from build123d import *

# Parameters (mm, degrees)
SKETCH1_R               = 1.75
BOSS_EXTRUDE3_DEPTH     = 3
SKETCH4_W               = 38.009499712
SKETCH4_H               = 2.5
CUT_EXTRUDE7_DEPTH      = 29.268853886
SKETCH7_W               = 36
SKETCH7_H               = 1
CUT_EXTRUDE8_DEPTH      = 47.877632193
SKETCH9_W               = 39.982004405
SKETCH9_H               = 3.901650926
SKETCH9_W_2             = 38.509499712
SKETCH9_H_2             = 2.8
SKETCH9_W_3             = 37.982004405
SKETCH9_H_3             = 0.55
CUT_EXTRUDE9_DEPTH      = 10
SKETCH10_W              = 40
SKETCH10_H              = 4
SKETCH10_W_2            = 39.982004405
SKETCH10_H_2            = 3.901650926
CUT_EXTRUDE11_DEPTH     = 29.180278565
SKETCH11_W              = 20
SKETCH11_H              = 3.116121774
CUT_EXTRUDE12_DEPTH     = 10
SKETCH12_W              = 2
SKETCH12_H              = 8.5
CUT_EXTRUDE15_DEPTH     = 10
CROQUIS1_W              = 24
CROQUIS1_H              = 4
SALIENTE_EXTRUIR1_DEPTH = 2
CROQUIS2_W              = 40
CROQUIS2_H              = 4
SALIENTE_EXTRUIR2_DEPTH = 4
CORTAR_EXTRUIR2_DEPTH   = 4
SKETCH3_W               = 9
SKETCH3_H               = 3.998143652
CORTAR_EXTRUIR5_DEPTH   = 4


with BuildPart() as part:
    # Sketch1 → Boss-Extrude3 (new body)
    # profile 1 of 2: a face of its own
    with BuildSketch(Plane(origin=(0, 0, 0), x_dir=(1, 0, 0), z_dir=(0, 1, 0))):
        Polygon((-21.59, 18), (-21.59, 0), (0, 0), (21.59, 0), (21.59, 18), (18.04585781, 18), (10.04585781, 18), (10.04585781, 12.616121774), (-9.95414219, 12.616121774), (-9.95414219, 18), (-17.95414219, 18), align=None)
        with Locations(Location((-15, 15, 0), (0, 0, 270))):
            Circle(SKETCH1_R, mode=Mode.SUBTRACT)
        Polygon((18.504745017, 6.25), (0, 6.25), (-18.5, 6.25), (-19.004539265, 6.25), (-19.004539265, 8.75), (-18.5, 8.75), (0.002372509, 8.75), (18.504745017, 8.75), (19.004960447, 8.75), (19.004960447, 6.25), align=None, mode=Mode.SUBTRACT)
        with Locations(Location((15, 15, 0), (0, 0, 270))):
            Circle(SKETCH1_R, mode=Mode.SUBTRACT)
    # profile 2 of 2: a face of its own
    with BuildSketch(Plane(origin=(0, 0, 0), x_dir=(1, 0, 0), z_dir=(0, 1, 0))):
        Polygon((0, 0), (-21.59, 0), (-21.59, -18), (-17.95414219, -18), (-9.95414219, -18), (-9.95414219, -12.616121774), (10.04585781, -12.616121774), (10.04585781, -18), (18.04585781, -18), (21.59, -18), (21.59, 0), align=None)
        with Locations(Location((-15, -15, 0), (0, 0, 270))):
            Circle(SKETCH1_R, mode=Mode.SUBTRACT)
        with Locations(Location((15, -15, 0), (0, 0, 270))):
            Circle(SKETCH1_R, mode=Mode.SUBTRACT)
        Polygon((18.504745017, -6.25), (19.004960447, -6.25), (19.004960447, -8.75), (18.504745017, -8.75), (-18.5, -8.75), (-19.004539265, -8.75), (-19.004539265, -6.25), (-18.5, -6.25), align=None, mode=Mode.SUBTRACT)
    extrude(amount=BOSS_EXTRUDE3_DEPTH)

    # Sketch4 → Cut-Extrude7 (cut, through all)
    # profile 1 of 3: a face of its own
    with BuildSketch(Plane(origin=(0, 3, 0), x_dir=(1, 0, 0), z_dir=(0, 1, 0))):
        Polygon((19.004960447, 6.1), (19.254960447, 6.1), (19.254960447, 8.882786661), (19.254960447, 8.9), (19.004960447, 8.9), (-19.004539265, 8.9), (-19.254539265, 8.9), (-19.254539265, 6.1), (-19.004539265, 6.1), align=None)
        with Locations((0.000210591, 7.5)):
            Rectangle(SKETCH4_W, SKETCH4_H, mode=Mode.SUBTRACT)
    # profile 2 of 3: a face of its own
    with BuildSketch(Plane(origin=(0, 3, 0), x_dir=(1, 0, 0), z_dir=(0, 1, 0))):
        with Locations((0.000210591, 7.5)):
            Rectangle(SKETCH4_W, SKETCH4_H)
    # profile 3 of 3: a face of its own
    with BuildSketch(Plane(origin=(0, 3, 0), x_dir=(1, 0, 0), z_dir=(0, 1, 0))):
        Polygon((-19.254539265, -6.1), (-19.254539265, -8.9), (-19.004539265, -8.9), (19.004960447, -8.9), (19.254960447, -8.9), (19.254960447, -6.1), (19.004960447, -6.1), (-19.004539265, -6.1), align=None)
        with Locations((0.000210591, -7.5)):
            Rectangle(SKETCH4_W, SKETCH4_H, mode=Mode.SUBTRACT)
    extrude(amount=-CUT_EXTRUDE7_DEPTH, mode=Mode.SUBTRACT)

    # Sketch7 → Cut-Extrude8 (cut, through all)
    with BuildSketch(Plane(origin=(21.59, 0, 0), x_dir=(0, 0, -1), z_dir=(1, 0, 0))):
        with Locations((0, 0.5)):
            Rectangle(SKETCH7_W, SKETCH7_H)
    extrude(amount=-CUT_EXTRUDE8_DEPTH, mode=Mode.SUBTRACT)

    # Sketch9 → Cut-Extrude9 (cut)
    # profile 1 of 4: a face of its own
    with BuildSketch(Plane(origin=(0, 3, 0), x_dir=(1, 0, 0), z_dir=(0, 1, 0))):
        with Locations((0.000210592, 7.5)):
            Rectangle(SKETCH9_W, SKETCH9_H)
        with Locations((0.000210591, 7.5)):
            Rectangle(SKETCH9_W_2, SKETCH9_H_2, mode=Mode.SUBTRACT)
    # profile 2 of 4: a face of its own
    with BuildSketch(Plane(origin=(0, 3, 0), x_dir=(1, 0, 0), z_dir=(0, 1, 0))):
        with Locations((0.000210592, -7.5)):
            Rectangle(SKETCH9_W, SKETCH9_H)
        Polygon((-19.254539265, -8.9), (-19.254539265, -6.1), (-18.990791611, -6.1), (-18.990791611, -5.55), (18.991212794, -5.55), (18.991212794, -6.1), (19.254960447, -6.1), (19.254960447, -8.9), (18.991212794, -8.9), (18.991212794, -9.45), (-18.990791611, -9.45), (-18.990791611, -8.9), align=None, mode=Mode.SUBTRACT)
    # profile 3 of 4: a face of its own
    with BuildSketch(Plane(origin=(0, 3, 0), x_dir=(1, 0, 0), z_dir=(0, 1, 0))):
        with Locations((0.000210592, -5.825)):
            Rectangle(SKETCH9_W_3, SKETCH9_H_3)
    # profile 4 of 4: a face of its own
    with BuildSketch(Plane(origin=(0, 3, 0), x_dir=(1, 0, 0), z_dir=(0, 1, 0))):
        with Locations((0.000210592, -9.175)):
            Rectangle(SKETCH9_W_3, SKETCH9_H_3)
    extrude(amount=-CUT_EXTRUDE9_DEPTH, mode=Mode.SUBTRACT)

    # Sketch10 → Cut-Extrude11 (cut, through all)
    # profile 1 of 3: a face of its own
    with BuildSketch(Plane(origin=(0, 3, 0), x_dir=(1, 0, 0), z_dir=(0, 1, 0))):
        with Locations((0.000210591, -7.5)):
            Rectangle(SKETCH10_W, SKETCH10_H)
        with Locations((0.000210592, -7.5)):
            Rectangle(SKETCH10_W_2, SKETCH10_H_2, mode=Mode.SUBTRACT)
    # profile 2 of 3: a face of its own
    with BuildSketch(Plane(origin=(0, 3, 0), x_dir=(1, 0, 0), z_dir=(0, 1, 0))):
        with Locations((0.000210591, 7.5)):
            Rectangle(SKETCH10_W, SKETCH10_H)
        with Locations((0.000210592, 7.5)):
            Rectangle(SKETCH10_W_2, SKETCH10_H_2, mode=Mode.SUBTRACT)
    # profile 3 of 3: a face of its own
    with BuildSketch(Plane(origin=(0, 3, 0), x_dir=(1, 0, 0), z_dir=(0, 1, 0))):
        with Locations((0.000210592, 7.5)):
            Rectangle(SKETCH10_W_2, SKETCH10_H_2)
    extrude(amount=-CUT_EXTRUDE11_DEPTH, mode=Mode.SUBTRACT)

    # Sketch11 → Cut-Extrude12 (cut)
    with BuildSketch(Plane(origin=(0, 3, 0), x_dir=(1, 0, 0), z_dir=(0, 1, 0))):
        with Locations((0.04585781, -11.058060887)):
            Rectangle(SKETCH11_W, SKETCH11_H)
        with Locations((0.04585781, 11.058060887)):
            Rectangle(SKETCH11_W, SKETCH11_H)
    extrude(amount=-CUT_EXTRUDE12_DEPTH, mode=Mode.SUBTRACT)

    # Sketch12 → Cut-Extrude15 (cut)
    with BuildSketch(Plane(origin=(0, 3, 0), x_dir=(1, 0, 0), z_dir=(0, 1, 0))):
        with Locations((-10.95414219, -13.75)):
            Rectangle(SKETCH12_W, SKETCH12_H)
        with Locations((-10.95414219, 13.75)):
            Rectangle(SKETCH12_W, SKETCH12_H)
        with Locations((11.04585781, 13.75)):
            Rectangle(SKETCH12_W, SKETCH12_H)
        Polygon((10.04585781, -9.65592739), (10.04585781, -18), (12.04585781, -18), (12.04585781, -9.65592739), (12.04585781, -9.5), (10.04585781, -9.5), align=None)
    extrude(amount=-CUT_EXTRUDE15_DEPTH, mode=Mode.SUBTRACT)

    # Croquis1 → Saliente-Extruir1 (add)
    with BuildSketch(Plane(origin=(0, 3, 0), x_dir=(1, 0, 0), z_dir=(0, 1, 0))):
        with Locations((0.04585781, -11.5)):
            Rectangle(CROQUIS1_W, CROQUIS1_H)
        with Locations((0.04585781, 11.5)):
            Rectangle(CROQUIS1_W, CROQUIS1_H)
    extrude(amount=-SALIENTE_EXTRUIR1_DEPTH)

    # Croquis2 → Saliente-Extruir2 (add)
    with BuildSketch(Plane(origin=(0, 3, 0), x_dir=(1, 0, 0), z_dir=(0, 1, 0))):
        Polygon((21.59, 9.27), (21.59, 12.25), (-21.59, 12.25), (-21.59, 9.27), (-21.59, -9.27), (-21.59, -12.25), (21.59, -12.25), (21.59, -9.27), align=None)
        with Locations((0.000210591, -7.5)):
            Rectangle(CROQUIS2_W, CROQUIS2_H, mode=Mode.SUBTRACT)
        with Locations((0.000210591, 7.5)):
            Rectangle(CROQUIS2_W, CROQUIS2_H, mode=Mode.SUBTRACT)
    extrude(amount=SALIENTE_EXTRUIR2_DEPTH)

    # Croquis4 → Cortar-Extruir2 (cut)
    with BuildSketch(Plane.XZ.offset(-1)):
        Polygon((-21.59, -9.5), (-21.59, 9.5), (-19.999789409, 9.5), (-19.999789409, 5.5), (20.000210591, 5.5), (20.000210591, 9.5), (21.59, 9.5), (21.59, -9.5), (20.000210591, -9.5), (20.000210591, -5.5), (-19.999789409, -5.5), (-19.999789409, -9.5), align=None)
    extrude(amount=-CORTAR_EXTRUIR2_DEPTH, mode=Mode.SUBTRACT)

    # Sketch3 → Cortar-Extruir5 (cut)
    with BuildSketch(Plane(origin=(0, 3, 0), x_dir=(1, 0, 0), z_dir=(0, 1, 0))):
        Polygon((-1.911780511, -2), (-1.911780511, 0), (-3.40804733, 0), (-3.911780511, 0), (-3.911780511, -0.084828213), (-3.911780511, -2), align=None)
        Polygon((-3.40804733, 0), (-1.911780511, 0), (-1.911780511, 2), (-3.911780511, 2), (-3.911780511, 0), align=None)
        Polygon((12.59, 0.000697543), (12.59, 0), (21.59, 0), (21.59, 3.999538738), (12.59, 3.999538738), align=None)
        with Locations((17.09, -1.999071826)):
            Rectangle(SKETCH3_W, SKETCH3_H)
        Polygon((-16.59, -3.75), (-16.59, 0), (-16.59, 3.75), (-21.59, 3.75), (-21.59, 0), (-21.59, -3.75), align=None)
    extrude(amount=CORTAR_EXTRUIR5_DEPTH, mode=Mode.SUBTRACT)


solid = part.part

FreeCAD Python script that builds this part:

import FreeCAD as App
import Part
import Sketcher
from FreeCAD import Vector


def add_polygon(sketch, points):
    """Adds a closed chain of lines whose ends are joined by coincident constraints."""
    first, n = sketch.GeometryCount, len(points)
    for a, b in zip(points, points[1:] + points[:1]):
        sketch.addGeometry(Part.LineSegment(App.Vector(*a, 0), App.Vector(*b, 0)), False)
    for i in range(n):
        sketch.addConstraint(Sketcher.Constraint("Coincident", first + i, 2, first + (i + 1) % n, 1))

doc = App.newDocument("Part")
body = doc.addObject("PartDesign::Body", "Body")

# Sketch on XZ plane
sketch1 = body.newObject("Sketcher::SketchObject", "Sketch")
sketch1.AttachmentSupport = (doc.getObject("XZ_Plane"), [""])
sketch1.MapMode = "FlatFace"
add_polygon(sketch1, [(-21.59, -18), (-21.59, 18), (-9.954142, 18), (-9.954142, 12.616122), (10.045858, 12.616122), (10.045858, 18), (21.59, 18), (21.59, -18), (10.045858, -18), (10.045858, -12.616122), (-9.954142, -12.616122), (-9.954142, -18)])  # lines 0-11
add_polygon(sketch1, [(19.00496, -6.25), (-19.004539, -6.25), (-19.004539, -8.75), (19.00496, -8.75)])  # lines 12-15
sketch1.addGeometry(Part.Circle(Vector(-15, -15, 0), Vector(0, 0, 1), 1.75), False)  # 16
sketch1.addGeometry(Part.Circle(Vector(15, -15, 0), Vector(0, 0, 1), 1.75), False)  # 17
add_polygon(sketch1, [(-19.004539, 8.75), (-19.004539, 6.25), (19.00496, 6.25), (19.00496, 8.75)])  # lines 18-21
sketch1.addGeometry(Part.Circle(Vector(-15, 15, 0), Vector(0, 0, 1), 1.75), False)  # 22
sketch1.addGeometry(Part.Circle(Vector(15, 15, 0), Vector(0, 0, 1), 1.75), False)  # 23
sketch1.addConstraint([
    Sketcher.Constraint("Vertical", 0),
    Sketcher.Constraint("Horizontal", 1),
    Sketcher.Constraint("Vertical", 2),
    Sketcher.Constraint("Horizontal", 3),
    Sketcher.Constraint("Vertical", 4),
    Sketcher.Constraint("Horizontal", 5),
    Sketcher.Constraint("Vertical", 6),
    Sketcher.Constraint("Horizontal", 7),
    Sketcher.Constraint("Vertical", 8),
    Sketcher.Constraint("Horizontal", 9),
    Sketcher.Constraint("Vertical", 10),
    Sketcher.Constraint("Horizontal", 11),
    Sketcher.Constraint("Horizontal", 12),
    Sketcher.Constraint("Vertical", 13),
    Sketcher.Constraint("Horizontal", 14),
    Sketcher.Constraint("Vertical", 15),
    Sketcher.Constraint("Vertical", 18),
    Sketcher.Constraint("Horizontal", 19),
    Sketcher.Constraint("Vertical", 20),
    Sketcher.Constraint("Horizontal", 21),
    Sketcher.Constraint("Equal", 16, 17),
    Sketcher.Constraint("Equal", 17, 22),
    Sketcher.Constraint("Equal", 22, 23),
    Sketcher.Constraint("Symmetric", 17, 3, 22, 3, -1, 1),
    Sketcher.Constraint("Symmetric", 16, 3, 23, 3, -1, 1),
    Sketcher.Constraint("Symmetric", 0, 2, 6, 2, -1, 1),
    Sketcher.Constraint("Symmetric", 16, 3, 17, 3, -2),
    Sketcher.Constraint("Symmetric", 4, 2, 7, 2, -1),
    Sketcher.Constraint("Symmetric", 2, 2, 9, 2, -1),
    Sketcher.Constraint("Symmetric", 12, 2, 18, 2, -1),
    Sketcher.Constraint("Symmetric", 14, 2, 20, 2, -1),
    Sketcher.Constraint("Horizontal", 7, 2, 10, 2),
    Sketcher.Constraint("Diameter", 16, 3.5),
    Sketcher.Constraint("DistanceX", 3, 1, 3, 2, 20.0),
    Sketcher.Constraint("DistanceY", 0, 1, 0, 2, 36.0),
    Sketcher.Constraint("DistanceY", 13, 2, 13, 1, 2.5),
    Sketcher.Constraint("DistanceX", 16, 3, -1, 1, 15.0),
    Sketcher.Constraint("DistanceY", 16, 3, -1, 1, 15.0),
    Sketcher.Constraint("DistanceY", 12, 2, 18, 2, 12.5),
    Sketcher.Constraint("DistanceX", 0, 2, -1, 1, 21.59),
    Sketcher.Constraint("DistanceX", 12, 2, 12, 1, 38.0095),
    Sketcher.Constraint("DistanceY", 2, 2, 2, 1, 5.383878),
    Sketcher.Constraint("DistanceX", 1, 1, 1, 2, 11.635858),
    Sketcher.Constraint("DistanceX", 12, 2, -1, 1, 19.004539),
])
pad1 = body.newObject("PartDesign::Pad", "Pad")
pad1.Profile = sketch1
pad1.Length = 3
pad1.Reversed = True

# Sketch on XZ plane
sketch2 = body.newObject("Sketcher::SketchObject", "Sketch001")
sketch2.AttachmentSupport = (doc.getObject("XZ_Plane"), [""])
sketch2.MapMode = "FlatFace"
sketch2.AttachmentOffset = App.Placement(Vector(0, 0, -3), App.Rotation())
add_polygon(sketch2, [(19.25496, -6.1), (19.25496, -8.9), (-19.254539, -8.9), (-19.254539, -6.1)])  # lines 0-3
add_polygon(sketch2, [(-19.254539, 6.1), (-19.254539, 8.9), (19.25496, 8.9), (19.25496, 6.1)])  # lines 4-7
add_polygon(sketch2, [(19.00496, 8.75), (-19.004539, 8.75), (-19.004539, 6.25), (19.00496, 6.25)])  # lines 8-11
sketch2.addConstraint([
    Sketcher.Constraint("Vertical", 0),
    Sketcher.Constraint("Horizontal", 1),
    Sketcher.Constraint("Vertical", 2),
    Sketcher.Constraint("Horizontal", 3),
    Sketcher.Constraint("Vertical", 4),
    Sketcher.Constraint("Horizontal", 5),
    Sketcher.Constraint("Vertical", 6),
    Sketcher.Constraint("Horizontal", 7),
    Sketcher.Constraint("Horizontal", 8),
    Sketcher.Constraint("Vertical", 9),
    Sketcher.Constraint("Horizontal", 10),
    Sketcher.Constraint("Vertical", 11),
    Sketcher.Constraint("Symmetric", 1, 2, 4, 2, -1),
    Sketcher.Constraint("Symmetric", 3, 2, 6, 2, -1),
    Sketcher.Constraint("DistanceY", 0, 2, 0, 1, 2.8),
    Sketcher.Constraint("DistanceY", 9, 2, 9, 1, 2.5),
    Sketcher.Constraint("DistanceY", 2, 2, 4, 2, 15.0),
    Sketcher.Constraint("DistanceY", -1, 1, 8, 2, 8.75),
    Sketcher.Constraint("DistanceX", 4, 2, 8, 2, 0.25),
    Sketcher.Constraint("DistanceX", 10, 2, 6, 2, 0.25),
    Sketcher.Constraint("DistanceX", 1, 2, 1, 1, 38.5095),
    Sketcher.Constraint("DistanceX", -1, 1, 0, 2, 19.25496),
])
pocket1 = body.newObject("PartDesign::Pocket", "Pocket")
pocket1.Profile = sketch2
pocket1.Length = 29.268854
pocket1.Reversed = True

# Sketch on YZ plane
sketch3 = body.newObject("Sketcher::SketchObject", "Sketch002")
sketch3.AttachmentSupport = (doc.getObject("YZ_Plane"), [""])
sketch3.MapMode = "FlatFace"
sketch3.AttachmentOffset = App.Placement(Vector(0, 0, 21.59), App.Rotation())
add_polygon(sketch3, [(1, 18), (0, 18), (0, -18), (1, -18)])  # lines 0-3
sketch3.addConstraint([
    Sketcher.Constraint("Horizontal", 0),
    Sketcher.Constraint("Vertical", 1),
    Sketcher.Constraint("Horizontal", 2),
    Sketcher.Constraint("Vertical", 3),
    Sketcher.Constraint("Symmetric", 0, 2, 1, 2, -1, 1),
    Sketcher.Constraint("DistanceX", 0, 2, 0, 1, 1.0),
    Sketcher.Constraint("DistanceY", 1, 2, 1, 1, 36.0),
])
pocket2 = body.newObject("PartDesign::Pocket", "Pocket001")
pocket2.Profile = sketch3
pocket2.Type = "ThroughAll"

# Sketch on XZ plane
sketch4 = body.newObject("Sketcher::SketchObject", "Sketch003")
sketch4.AttachmentSupport = (doc.getObject("XZ_Plane"), [""])
sketch4.MapMode = "FlatFace"
sketch4.AttachmentOffset = App.Placement(Vector(0, 0, -3), App.Rotation())
add_polygon(sketch4, [(-19.990792, -9.450825), (-19.990792, -5.549175), (19.991213, -5.549175), (19.991213, -9.450825)])  # lines 0-3
add_polygon(sketch4, [(19.25496, -6.1), (-19.254539, -6.1), (-19.254539, -8.9), (19.25496, -8.9)])  # lines 4-7
add_polygon(sketch4, [(-19.990792, 5.549175), (-19.990792, 9.450825), (19.991213, 9.450825), (19.991213, 5.549175)])  # lines 8-11
add_polygon(sketch4, [(-19.254539, 8.9), (-19.254539, 6.1), (19.25496, 6.1), (19.25496, 8.9)])  # lines 12-15
sketch4.addConstraint([
    Sketcher.Constraint("Vertical", 0),
    Sketcher.Constraint("Horizontal", 1),
    Sketcher.Constraint("Vertical", 2),
    Sketcher.Constraint("Horizontal", 3),
    Sketcher.Constraint("Horizontal", 4),
    Sketcher.Constraint("Vertical", 5),
    Sketcher.Constraint("Horizontal", 6),
    Sketcher.Constraint("Vertical", 7),
    Sketcher.Constraint("Vertical", 8),
    Sketcher.Constraint("Horizontal", 9),
    Sketcher.Constraint("Vertical", 10),
    Sketcher.Constraint("Horizontal", 11),
    Sketcher.Constraint("Vertical", 12),
    Sketcher.Constraint("Horizontal", 13),
    Sketcher.Constraint("Vertical", 14),
    Sketcher.Constraint("Horizontal", 15),
    Sketcher.Constraint("Symmetric", 3, 2, 8, 2, -1),
    Sketcher.Constraint("Symmetric", 1, 2, 10, 2, -1),
    Sketcher.Constraint("Symmetric", 4, 2, 12, 2, -1),
    Sketcher.Constraint("Symmetric", 6, 2, 14, 2, -1),
    Sketcher.Constraint("DistanceY", 5, 2, 5, 1, 2.8),
    Sketcher.Constraint("DistanceY", 0, 2, 8, 2, 15.0),
    Sketcher.Constraint("DistanceY", 5, 2, 12, 2, 15.0),
    Sketcher.Constraint("DistanceX", 4, 2, 4, 1, 38.5095),
    Sketcher.Constraint("DistanceY", 0, 1, 0, 2, 3.901651),
    Sketcher.Constraint("DistanceX", 1, 1, 1, 2, 39.982004),
    Sketcher.Constraint("DistanceX", 0, 2, -1, 1, 19.990792),
    Sketcher.Constraint("DistanceX", 4, 2, -1, 1, 19.254539),
])
pocket3 = body.newObject("PartDesign::Pocket", "Pocket002")
pocket3.Profile = sketch4
pocket3.Length = 10
pocket3.Reversed = True

# Sketch on XZ plane
sketch5 = body.newObject("Sketcher::SketchObject", "Sketch004")
sketch5.AttachmentSupport = (doc.getObject("XZ_Plane"), [""])
sketch5.MapMode = "FlatFace"
sketch5.AttachmentOffset = App.Placement(Vector(0, 0, -3), App.Rotation())
add_polygon(sketch5, [(-19.999789, 5.5), (-19.999789, 9.5), (20.000211, 9.5), (20.000211, 5.5)])  # lines 0-3
add_polygon(sketch5, [(19.991213, 9.450825), (-19.990792, 9.450825), (-19.990792, 5.549175), (19.991213, 5.549175)])  # lines 4-7
add_polygon(sketch5, [(-19.999789, -9.5), (-19.999789, -5.5), (20.000211, -5.5), (20.000211, -9.5)])  # lines 8-11
sketch5.addConstraint([
    Sketcher.Constraint("Vertical", 0),
    Sketcher.Constraint("Horizontal", 1),
    Sketcher.Constraint("Vertical", 2),
    Sketcher.Constraint("Horizontal", 3),
    Sketcher.Constraint("Horizontal", 4),
    Sketcher.Constraint("Vertical", 5),
    Sketcher.Constraint("Horizontal", 6),
    Sketcher.Constraint("Vertical", 7),
    Sketcher.Constraint("Vertical", 8),
    Sketcher.Constraint("Horizontal", 9),
    Sketcher.Constraint("Vertical", 10),
    Sketcher.Constraint("Horizontal", 11),
    Sketcher.Constraint("Symmetric", 3, 2, 8, 2, -1),
    Sketcher.Constraint("Symmetric", 1, 2, 10, 2, -1),
    Sketcher.Constraint("DistanceX", 1, 1, 1, 2, 40.0),
    Sketcher.Constraint("DistanceY", 0, 1, 0, 2, 4.0),
    Sketcher.Constraint("DistanceY", 8, 2, 3, 2, 11.0),
    Sketcher.Constraint("DistanceY", 5, 2, 5, 1, 3.901651),
    Sketcher.Constraint("DistanceX", 4, 2, 4, 1, 39.982004),
    Sketcher.Constraint("DistanceX", 0, 2, -1, 1, 19.999789),
    Sketcher.Constraint("DistanceX", 4, 2, -1, 1, 19.990792),
    Sketcher.Constraint("DistanceY", -1, 1, 4, 2, 9.450825),
])
pocket4 = body.newObject("PartDesign::Pocket", "Pocket003")
pocket4.Profile = sketch5
pocket4.Length = 29.180279
pocket4.Reversed = True

# Sketch on XZ plane
sketch6 = body.newObject("Sketcher::SketchObject", "Sketch005")
sketch6.AttachmentSupport = (doc.getObject("XZ_Plane"), [""])
sketch6.MapMode = "FlatFace"
sketch6.AttachmentOffset = App.Placement(Vector(0, 0, -3), App.Rotation())
add_polygon(sketch6, [(-9.954142, 9.5), (-9.954142, 12.616122), (10.045858, 12.616122), (10.045858, 9.5)])  # lines 0-3
add_polygon(sketch6, [(-9.954142, -12.616122), (-9.954142, -9.5), (10.045858, -9.5), (10.045858, -12.616122)])  # lines 4-7
sketch6.addConstraint([
    Sketcher.Constraint("Vertical", 0),
    Sketcher.Constraint("Horizontal", 1),
    Sketcher.Constraint("Vertical", 2),
    Sketcher.Constraint("Horizontal", 3),
    Sketcher.Constraint("Vertical", 4),
    Sketcher.Constraint("Horizontal", 5),
    Sketcher.Constraint("Vertical", 6),
    Sketcher.Constraint("Horizontal", 7),
    Sketcher.Constraint("Symmetric", 3, 2, 4, 2, -1),
    Sketcher.Constraint("Symmetric", 1, 2, 6, 2, -1),
    Sketcher.Constraint("DistanceX", 1, 1, 1, 2, 20.0),
    Sketcher.Constraint("DistanceY", 4, 2, 3, 2, 19.0),
    Sketcher.Constraint("DistanceY", 0, 1, 0, 2, 3.116122),
    Sketcher.Constraint("DistanceX", 0, 2, -1, 1, 9.954142),
])
pocket5 = body.newObject("PartDesign::Pocket", "Pocket004")
pocket5.Profile = sketch6
pocket5.Length = 10
pocket5.Reversed = True

# Sketch on XZ plane
sketch7 = body.newObject("Sketcher::SketchObject", "Sketch006")
sketch7.AttachmentSupport = (doc.getObject("XZ_Plane"), [""])
sketch7.MapMode = "FlatFace"
sketch7.AttachmentOffset = App.Placement(Vector(0, 0, -3), App.Rotation())
add_polygon(sketch7, [(-11.954142, 9.5), (-11.954142, 18), (-9.954142, 18), (-9.954142, 9.5)])  # lines 0-3
add_polygon(sketch7, [(-11.954142, -18), (-11.954142, -9.5), (-9.954142, -9.5), (-9.954142, -18)])  # lines 4-7
add_polygon(sketch7, [(10.045858, -18), (10.045858, -9.5), (12.045858, -9.5), (12.045858, -18)])  # lines 8-11
add_polygon(sketch7, [(10.045858, 18), (12.045858, 18), (12.045858, 9.5), (10.045858, 9.5)])  # lines 12-15
sketch7.addConstraint([
    Sketcher.Constraint("Vertical", 0),
    Sketcher.Constraint("Horizontal", 1),
    Sketcher.Constraint("Vertical", 2),
    Sketcher.Constraint("Horizontal", 3),
    Sketcher.Constraint("Vertical", 4),
    Sketcher.Constraint("Horizontal", 5),
    Sketcher.Constraint("Vertical", 6),
    Sketcher.Constraint("Horizontal", 7),
    Sketcher.Constraint("Vertical", 8),
    Sketcher.Constraint("Horizontal", 9),
    Sketcher.Constraint("Vertical", 10),
    Sketcher.Constraint("Horizontal", 11),
    Sketcher.Constraint("Horizontal", 12),
    Sketcher.Constraint("Vertical", 13),
    Sketcher.Constraint("Horizontal", 14),
    Sketcher.Constraint("Vertical", 15),
    Sketcher.Constraint("Symmetric", 3, 2, 4, 2, -1),
    Sketcher.Constraint("Symmetric", 1, 2, 6, 2, -1),
    Sketcher.Constraint("Symmetric", 10, 2, 12, 2, -1),
    Sketcher.Constraint("Symmetric", 8, 2, 14, 2, -1),
    Sketcher.Constraint("Horizontal", 5, 2, 8, 2),
    Sketcher.Constraint("Horizontal", 7, 2, 10, 2),
    Sketcher.Constraint("Equal", 7, 9),
    Sketcher.Constraint("DistanceX", 1, 1, 1, 2, 2.0),
    Sketcher.Constraint("DistanceY", 0, 1, 0, 2, 8.5),
    Sketcher.Constraint("DistanceY", -1, 1, 0, 2, 18.0),
    Sketcher.Constraint("DistanceX", 5, 2, 8, 2, 20.0),
    Sketcher.Constraint("DistanceX", 0, 2, -1, 1, 11.954142),
])
pocket6 = body.newObject("PartDesign::Pocket", "Pocket005")
pocket6.Profile = sketch7
pocket6.Length = 10
pocket6.Reversed = True

# Sketch on XZ plane
sketch8 = body.newObject("Sketcher::SketchObject", "Sketch007")
sketch8.AttachmentSupport = (doc.getObject("XZ_Plane"), [""])
sketch8.MapMode = "FlatFace"
sketch8.AttachmentOffset = App.Placement(Vector(0, 0, -3), App.Rotation())
add_polygon(sketch8, [(-11.954142, 9.5), (-11.954142, 13.5), (12.045858, 13.5), (12.045858, 9.5)])  # lines 0-3
add_polygon(sketch8, [(-11.954142, -13.5), (-11.954142, -9.5), (12.045858, -9.5), (12.045858, -13.5)])  # lines 4-7
sketch8.addConstraint([
    Sketcher.Constraint("Vertical", 0),
    Sketcher.Constraint("Horizontal", 1),
    Sketcher.Constraint("Vertical", 2),
    Sketcher.Constraint("Horizontal", 3),
    Sketcher.Constraint("Vertical", 4),
    Sketcher.Constraint("Horizontal", 5),
    Sketcher.Constraint("Vertical", 6),
    Sketcher.Constraint("Horizontal", 7),
    Sketcher.Constraint("Symmetric", 3, 2, 4, 2, -1),
    Sketcher.Constraint("Symmetric", 1, 2, 6, 2, -1),
    Sketcher.Constraint("DistanceX", 1, 1, 1, 2, 24.0),
    Sketcher.Constraint("DistanceY", 0, 1, 0, 2, 4.0),
    Sketcher.Constraint("DistanceY", 4, 2, 3, 2, 19.0),
    Sketcher.Constraint("DistanceX", 0, 2, -1, 1, 11.954142),
])
pad2 = body.newObject("PartDesign::Pad", "Pad001")
pad2.Profile = sketch8
pad2.Length = 2

# Sketch on XZ plane
sketch9 = body.newObject("Sketcher::SketchObject", "Sketch008")
sketch9.AttachmentSupport = (doc.getObject("XZ_Plane"), [""])
sketch9.MapMode = "FlatFace"
sketch9.AttachmentOffset = App.Placement(Vector(0, 0, -3), App.Rotation())
add_polygon(sketch9, [(21.59, -12.25), (-21.59, -12.25), (-21.59, 12.25), (21.59, 12.25)])  # lines 0-3
add_polygon(sketch9, [(20.000211, 9.5), (-19.999789, 9.5), (-19.999789, 5.5), (20.000211, 5.5)])  # lines 4-7
add_polygon(sketch9, [(20.000211, -5.5), (-19.999789, -5.5), (-19.999789, -9.5), (20.000211, -9.5)])  # lines 8-11
sketch9.addConstraint([
    Sketcher.Constraint("Horizontal", 0),
    Sketcher.Constraint("Vertical", 1),
    Sketcher.Constraint("Horizontal", 2),
    Sketcher.Constraint("Vertical", 3),
    Sketcher.Constraint("Horizontal", 4),
    Sketcher.Constraint("Vertical", 5),
    Sketcher.Constraint("Horizontal", 6),
    Sketcher.Constraint("Vertical", 7),
    Sketcher.Constraint("Horizontal", 8),
    Sketcher.Constraint("Vertical", 9),
    Sketcher.Constraint("Horizontal", 10),
    Sketcher.Constraint("Vertical", 11),
    Sketcher.Constraint("Symmetric", 0, 2, 2, 2, -1, 1),
    Sketcher.Constraint("Symmetric", 5, 2, 8, 2, -1),
    Sketcher.Constraint("Symmetric", 7, 2, 10, 2, -1),
    Sketcher.Constraint("DistanceX", 4, 2, 4, 1, 40.0),
    Sketcher.Constraint("DistanceY", 5, 2, 5, 1, 4.0),
    Sketcher.Constraint("DistanceY", 1, 1, 1, 2, 24.5),
    Sketcher.Constraint("DistanceY", 8, 2, 5, 2, 11.0),
    Sketcher.Constraint("DistanceX", 0, 2, 0, 1, 43.18),
    Sketcher.Constraint("DistanceX", 4, 2, -1, 1, 19.999789),
])
pad3 = body.newObject("PartDesign::Pad", "Pad002")
pad3.Profile = sketch9
pad3.Length = 4
pad3.Reversed = True

# Sketch on XZ plane
sketch10 = body.newObject("Sketcher::SketchObject", "Sketch009")
sketch10.AttachmentSupport = (doc.getObject("XZ_Plane"), [""])
sketch10.MapMode = "FlatFace"
sketch10.AttachmentOffset = App.Placement(Vector(0, 0, -1), App.Rotation())
add_polygon(sketch10, [(-21.59, 9.5), (-21.59, -9.5), (-19.999789, -9.5), (-19.999789, -5.5), (20.000211, -5.5), (20.000211, -9.5), (21.59, -9.5), (21.59, 9.5), (20.000211, 9.5), (20.000211, 5.5), (-19.999789, 5.5), (-19.999789, 9.5)])  # lines 0-11
sketch10.addConstraint([
    Sketcher.Constraint("Vertical", 0),
    Sketcher.Constraint("Horizontal", 1),
    Sketcher.Constraint("Vertical", 2),
    Sketcher.Constraint("Horizontal", 3),
    Sketcher.Constraint("Vertical", 4),
    Sketcher.Constraint("Horizontal", 5),
    Sketcher.Constraint("Vertical", 6),
    Sketcher.Constraint("Horizontal", 7),
    Sketcher.Constraint("Vertical", 8),
    Sketcher.Constraint("Horizontal", 9),
    Sketcher.Constraint("Vertical", 10),
    Sketcher.Constraint("Horizontal", 11),
    Sketcher.Constraint("Symmetric", 0, 2, 6, 2, -1, 1),
    Sketcher.Constraint("Symmetric", 4, 2, 7, 2, -1),
    Sketcher.Constraint("Symmetric", 2, 2, 9, 2, -1),
    Sketcher.Constraint("Horizontal", 7, 2, 10, 2),
    Sketcher.Constraint("DistanceX", 3, 1, 3, 2, 40.0),
    Sketcher.Constraint("DistanceY", 0, 2, 0, 1, 19.0),
    Sketcher.Constraint("DistanceY", 2, 1, 2, 2, 4.0),
    Sketcher.Constraint("DistanceX", 0, 2, -1, 1, 21.59),
    Sketcher.Constraint("DistanceX", 1, 1, 1, 2, 1.590211),
])
pocket7 = body.newObject("PartDesign::Pocket", "Pocket006")
pocket7.Profile = sketch10
pocket7.Length = 4

# Sketch on XZ plane
sketch11 = body.newObject("Sketcher::SketchObject", "Sketch010")
sketch11.AttachmentSupport = (doc.getObject("XZ_Plane"), [""])
sketch11.MapMode = "FlatFace"
sketch11.AttachmentOffset = App.Placement(Vector(0, 0, -3), App.Rotation())
add_polygon(sketch11, [(-1.911781, 2), (-1.911781, -2), (-3.911781, -2), (-3.911781, 2)])  # lines 0-3
add_polygon(sketch11, [(21.59, -3.999539), (12.59, -3.999539), (12.59, 3.998144), (21.59, 3.998144)])  # lines 4-7
add_polygon(sketch11, [(-16.59, 3.75), (-16.59, -3.75), (-21.59, -3.75), (-21.59, 3.75)])  # lines 8-11
sketch11.addConstraint([
    Sketcher.Constraint("Vertical", 0),
    Sketcher.Constraint("Horizontal", 1),
    Sketcher.Constraint("Vertical", 2),
    Sketcher.Constraint("Horizontal", 3),
    Sketcher.Constraint("Horizontal", 4),
    Sketcher.Constraint("Vertical", 5),
    Sketcher.Constraint("Horizontal", 6),
    Sketcher.Constraint("Vertical", 7),
    Sketcher.Constraint("Vertical", 8),
    Sketcher.Constraint("Horizontal", 9),
    Sketcher.Constraint("Vertical", 10),
    Sketcher.Constraint("Horizontal", 11),
    Sketcher.Constraint("DistanceX", 1, 2, 1, 1, 2.0),
    Sketcher.Constraint("DistanceX", 4, 2, 4, 1, 9.0),
    Sketcher.Constraint("DistanceX", 9, 2, 9, 1, 5.0),
    Sketcher.Constraint("DistanceY", 0, 2, 0, 1, 4.0),
    Sketcher.Constraint("DistanceY", 8, 2, 8, 1, 7.5),
    Sketcher.Constraint("DistanceY", 0, 2, -1, 1, 2.0),
    Sketcher.Constraint("DistanceX", -1, 1, 4, 2, 12.59),
    Sketcher.Constraint("DistanceX", 8, 2, -1, 1, 16.59),
    Sketcher.Constraint("DistanceY", 8, 2, -1, 1, 3.75),
    Sketcher.Constraint("DistanceY", 5, 1, 5, 2, 7.997682),
    Sketcher.Constraint("DistanceX", 0, 2, -1, 1, 1.911781),
    Sketcher.Constraint("DistanceY", 4, 2, -1, 1, 3.999539),
])
pocket8 = body.newObject("PartDesign::Pocket", "Pocket007")
pocket8.Profile = sketch11
pocket8.Length = 4

doc.recompute()
